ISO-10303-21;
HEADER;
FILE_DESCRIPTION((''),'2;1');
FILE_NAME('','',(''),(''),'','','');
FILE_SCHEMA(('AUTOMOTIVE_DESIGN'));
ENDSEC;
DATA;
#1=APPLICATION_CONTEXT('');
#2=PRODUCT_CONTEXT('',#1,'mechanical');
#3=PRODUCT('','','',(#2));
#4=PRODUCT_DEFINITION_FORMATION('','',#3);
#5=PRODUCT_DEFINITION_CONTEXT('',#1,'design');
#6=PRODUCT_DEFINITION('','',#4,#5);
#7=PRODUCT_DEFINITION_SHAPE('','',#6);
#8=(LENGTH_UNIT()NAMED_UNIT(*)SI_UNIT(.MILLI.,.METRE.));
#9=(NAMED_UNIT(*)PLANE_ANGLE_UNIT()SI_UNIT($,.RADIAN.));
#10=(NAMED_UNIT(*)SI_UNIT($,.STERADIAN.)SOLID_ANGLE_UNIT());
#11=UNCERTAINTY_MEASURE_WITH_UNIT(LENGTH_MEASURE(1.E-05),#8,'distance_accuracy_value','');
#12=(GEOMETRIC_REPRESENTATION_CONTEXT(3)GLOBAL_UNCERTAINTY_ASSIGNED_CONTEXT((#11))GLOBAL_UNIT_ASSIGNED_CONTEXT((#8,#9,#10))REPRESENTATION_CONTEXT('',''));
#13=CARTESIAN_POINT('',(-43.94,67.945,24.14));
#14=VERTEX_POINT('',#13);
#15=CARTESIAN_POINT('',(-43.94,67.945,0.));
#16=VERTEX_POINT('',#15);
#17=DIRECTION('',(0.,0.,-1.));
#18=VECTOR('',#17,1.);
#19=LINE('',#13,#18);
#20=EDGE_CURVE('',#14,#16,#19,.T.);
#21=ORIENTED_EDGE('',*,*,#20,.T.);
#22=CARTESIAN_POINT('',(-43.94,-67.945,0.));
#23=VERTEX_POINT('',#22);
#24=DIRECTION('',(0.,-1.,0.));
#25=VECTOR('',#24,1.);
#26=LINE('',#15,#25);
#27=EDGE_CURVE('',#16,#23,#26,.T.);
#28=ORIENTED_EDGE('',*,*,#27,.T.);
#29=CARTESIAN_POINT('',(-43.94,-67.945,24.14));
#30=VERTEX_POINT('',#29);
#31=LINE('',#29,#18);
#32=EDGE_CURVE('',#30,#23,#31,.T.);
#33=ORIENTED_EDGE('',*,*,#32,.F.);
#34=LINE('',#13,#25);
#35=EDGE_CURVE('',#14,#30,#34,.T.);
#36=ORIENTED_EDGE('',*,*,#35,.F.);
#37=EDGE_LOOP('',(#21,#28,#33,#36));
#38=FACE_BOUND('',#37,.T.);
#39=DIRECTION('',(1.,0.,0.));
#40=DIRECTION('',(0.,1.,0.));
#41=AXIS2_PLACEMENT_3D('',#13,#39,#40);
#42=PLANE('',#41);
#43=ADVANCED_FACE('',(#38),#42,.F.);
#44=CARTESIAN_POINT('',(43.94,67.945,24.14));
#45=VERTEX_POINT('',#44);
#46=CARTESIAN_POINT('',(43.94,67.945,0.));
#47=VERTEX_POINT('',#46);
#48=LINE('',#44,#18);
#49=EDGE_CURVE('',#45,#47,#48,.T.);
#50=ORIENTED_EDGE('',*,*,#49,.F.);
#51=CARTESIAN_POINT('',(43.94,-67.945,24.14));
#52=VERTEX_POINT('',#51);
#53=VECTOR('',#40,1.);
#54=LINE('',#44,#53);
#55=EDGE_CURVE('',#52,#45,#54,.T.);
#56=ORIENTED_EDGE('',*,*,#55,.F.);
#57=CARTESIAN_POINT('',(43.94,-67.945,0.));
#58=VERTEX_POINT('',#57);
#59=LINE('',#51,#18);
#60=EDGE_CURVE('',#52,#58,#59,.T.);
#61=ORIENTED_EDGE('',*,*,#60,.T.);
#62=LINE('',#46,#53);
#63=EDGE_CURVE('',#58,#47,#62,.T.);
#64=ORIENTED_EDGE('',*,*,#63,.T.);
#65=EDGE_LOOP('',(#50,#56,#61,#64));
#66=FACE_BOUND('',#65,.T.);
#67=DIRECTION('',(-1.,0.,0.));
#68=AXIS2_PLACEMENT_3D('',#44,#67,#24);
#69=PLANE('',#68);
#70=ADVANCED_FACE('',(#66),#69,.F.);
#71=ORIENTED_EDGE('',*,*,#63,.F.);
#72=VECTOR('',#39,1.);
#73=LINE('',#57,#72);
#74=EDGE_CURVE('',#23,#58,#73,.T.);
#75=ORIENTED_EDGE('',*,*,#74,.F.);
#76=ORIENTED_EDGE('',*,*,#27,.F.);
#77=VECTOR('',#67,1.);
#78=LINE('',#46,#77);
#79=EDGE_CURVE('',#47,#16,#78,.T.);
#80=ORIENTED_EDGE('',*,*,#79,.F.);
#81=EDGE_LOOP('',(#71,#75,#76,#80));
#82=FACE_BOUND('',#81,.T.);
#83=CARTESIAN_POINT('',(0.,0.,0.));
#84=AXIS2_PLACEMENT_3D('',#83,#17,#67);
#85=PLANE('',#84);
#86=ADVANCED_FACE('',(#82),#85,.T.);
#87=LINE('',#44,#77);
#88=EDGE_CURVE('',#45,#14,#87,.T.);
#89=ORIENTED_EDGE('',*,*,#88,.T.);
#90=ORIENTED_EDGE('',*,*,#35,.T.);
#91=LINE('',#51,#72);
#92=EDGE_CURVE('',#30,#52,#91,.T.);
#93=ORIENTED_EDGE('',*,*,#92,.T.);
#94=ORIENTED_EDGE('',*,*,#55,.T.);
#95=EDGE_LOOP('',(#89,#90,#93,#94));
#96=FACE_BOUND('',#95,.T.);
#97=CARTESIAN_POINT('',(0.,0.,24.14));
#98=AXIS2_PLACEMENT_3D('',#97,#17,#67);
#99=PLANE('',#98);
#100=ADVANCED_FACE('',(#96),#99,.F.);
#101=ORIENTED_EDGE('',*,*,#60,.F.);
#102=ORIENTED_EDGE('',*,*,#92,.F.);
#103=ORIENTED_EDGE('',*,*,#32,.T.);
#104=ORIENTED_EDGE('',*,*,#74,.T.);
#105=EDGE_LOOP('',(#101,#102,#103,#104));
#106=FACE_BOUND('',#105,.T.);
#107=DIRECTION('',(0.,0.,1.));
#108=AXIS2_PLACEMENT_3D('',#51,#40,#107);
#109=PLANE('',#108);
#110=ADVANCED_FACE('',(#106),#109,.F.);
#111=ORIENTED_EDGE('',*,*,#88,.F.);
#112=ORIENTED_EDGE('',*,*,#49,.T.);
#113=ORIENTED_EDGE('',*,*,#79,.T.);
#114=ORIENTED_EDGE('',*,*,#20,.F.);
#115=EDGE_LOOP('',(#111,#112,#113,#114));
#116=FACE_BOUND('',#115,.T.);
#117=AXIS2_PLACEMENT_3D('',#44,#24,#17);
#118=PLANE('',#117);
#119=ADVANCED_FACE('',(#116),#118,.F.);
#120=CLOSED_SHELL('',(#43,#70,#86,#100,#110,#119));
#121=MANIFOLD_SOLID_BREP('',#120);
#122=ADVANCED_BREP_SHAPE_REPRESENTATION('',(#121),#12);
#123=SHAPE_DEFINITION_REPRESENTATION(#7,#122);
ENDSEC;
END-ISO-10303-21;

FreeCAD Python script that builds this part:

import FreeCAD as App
import Part
import Sketcher
from FreeCAD import Vector
Q = App.Units.Quantity


def add_polygon(sketch, points):
    """Adds a closed chain of lines whose ends are joined by coincident constraints."""
    first, n = sketch.GeometryCount, len(points)
    for a, b in zip(points, points[1:] + points[:1]):
        sketch.addGeometry(Part.LineSegment(App.Vector(*a, 0), App.Vector(*b, 0)), False)
    for i in range(n):
        sketch.addConstraint(Sketcher.Constraint("Coincident", first + i, 2, first + (i + 1) % n, 1))

doc = App.newDocument("Part")
body = doc.addObject("PartDesign::Body", "Body")

# Sketch on XY plane
sketch1 = body.newObject("Sketcher::SketchObject", "Sketch")
sketch1.AttachmentSupport = (doc.getObject("XY_Plane"), [""])
sketch1.MapMode = "FlatFace"
add_polygon(sketch1, [(-44, 68), (-44, -68), (44, -68), (44, 68)])  # lines 0-3
sketch1.addConstraint(Sketcher.Constraint("Vertical", 0))
sketch1.addConstraint(Sketcher.Constraint("Horizontal", 1))
sketch1.addConstraint(Sketcher.Constraint("Vertical", 2))
sketch1.addConstraint(Sketcher.Constraint("Horizontal", 3))
sketch1.addConstraint(Sketcher.Constraint("Symmetric", 0, 2, 2, 2, -1, 1))
sketch1.addConstraint(Sketcher.Constraint("DistanceY", 0, 2, 0, 1, Q("5.35 in")))
sketch1.addConstraint(Sketcher.Constraint("DistanceX", 1, 1, 1, 2, Q("87.88 mm")))
pad1 = body.newObject("PartDesign::Pad", "Pad")
pad1.Profile = sketch1
pad1.Length = 24.14

doc.recompute()
